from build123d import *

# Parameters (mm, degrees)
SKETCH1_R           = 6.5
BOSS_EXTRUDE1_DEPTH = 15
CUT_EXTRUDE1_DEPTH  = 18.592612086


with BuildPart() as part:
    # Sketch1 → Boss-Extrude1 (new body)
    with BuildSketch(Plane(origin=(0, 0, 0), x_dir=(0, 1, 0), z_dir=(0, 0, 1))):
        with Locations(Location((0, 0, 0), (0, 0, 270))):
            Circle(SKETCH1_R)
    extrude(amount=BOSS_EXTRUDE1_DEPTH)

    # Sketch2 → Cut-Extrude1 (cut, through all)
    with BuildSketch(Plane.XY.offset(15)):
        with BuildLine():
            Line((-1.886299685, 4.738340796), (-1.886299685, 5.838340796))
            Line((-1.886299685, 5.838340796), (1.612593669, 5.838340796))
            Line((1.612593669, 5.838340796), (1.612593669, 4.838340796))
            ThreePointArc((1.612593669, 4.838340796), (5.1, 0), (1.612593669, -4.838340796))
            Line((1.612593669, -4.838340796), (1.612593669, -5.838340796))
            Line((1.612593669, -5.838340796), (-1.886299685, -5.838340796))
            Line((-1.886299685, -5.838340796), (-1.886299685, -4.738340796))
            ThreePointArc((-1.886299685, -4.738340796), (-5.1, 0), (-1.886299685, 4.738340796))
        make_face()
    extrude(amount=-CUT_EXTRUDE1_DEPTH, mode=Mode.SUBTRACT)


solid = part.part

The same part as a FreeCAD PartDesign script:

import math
import FreeCAD as App
import Part
import Sketcher
from FreeCAD import Vector
Q = App.Units.Quantity

doc = App.newDocument("Part")
body = doc.addObject("PartDesign::Body", "Body")

sketch1 = doc.addObject("Sketcher::SketchObject", "Sketch")
body.addObject(sketch1)
sketch1.AttachmentSupport = (doc.XY_Plane, [""])
sketch1.MapMode = "FlatFace"
sketch1.addGeometry(Part.Circle(Vector(0, 0, 0), Vector(0, 0, 1), 6), False)
sketch1.addConstraint(Sketcher.Constraint("Coincident", 0, 3, -1, 1))
sketch1.addConstraint(Sketcher.Constraint("Diameter", 0, Q("13 mm")))
pad1 = doc.addObject("PartDesign::Pad", "Pad")
body.addObject(pad1)
pad1.Profile = sketch1
pad1.Length = 15

sketch2 = doc.addObject("Sketcher::SketchObject", "Sketch001")
body.addObject(sketch2)
sketch2.AttachmentSupport = (doc.XY_Plane, [""])
sketch2.MapMode = "FlatFace"
sketch2.AttachmentOffset = App.Placement(Vector(0, 0, 15), App.Rotation())
sketch2.addGeometry(Part.LineSegment(Vector(-1.9, 5.8, 0), Vector(-1.9, 4.7, 0)), False)
sketch2.addGeometry(Part.ArcOfCircle(Part.Circle(Vector(0, 0, 0), Vector(0, 0, 1), 5.1), math.radians(112), math.radians(248)), False)
sketch2.addGeometry(Part.LineSegment(Vector(-1.9, -4.7, 0), Vector(-1.9, -5.8, 0)), False)
sketch2.addGeometry(Part.LineSegment(Vector(-1.9, -5.8, 0), Vector(1.6, -5.8, 0)), False)
sketch2.addGeometry(Part.LineSegment(Vector(1.6, -5.8, 0), Vector(1.6, -4.8, 0)), False)
sketch2.addGeometry(Part.ArcOfCircle(Part.Circle(Vector(0, 0, 0), Vector(0, 0, 1), 5.1), math.radians(-72), math.radians(72)), False)
sketch2.addGeometry(Part.LineSegment(Vector(1.6, 4.8, 0), Vector(1.6, 5.8, 0)), False)
sketch2.addGeometry(Part.LineSegment(Vector(1.6, 5.8, 0), Vector(-1.9, 5.8, 0)), False)
sketch2.addConstraint(Sketcher.Constraint("Coincident", 0, 2, 1, 1))
sketch2.addConstraint(Sketcher.Constraint("Coincident", 1, 2, 2, 1))
sketch2.addConstraint(Sketcher.Constraint("Coincident", 2, 2, 3, 1))
sketch2.addConstraint(Sketcher.Constraint("Coincident", 3, 2, 4, 1))
sketch2.addConstraint(Sketcher.Constraint("Coincident", 4, 2, 5, 1))
sketch2.addConstraint(Sketcher.Constraint("Coincident", 5, 2, 6, 1))
sketch2.addConstraint(Sketcher.Constraint("Coincident", 6, 2, 7, 1))
sketch2.addConstraint(Sketcher.Constraint("Coincident", 7, 2, 0, 1))
sketch2.addConstraint(Sketcher.Constraint("Vertical", 0))
sketch2.addConstraint(Sketcher.Constraint("Vertical", 2))
sketch2.addConstraint(Sketcher.Constraint("Horizontal", 3))
sketch2.addConstraint(Sketcher.Constraint("Vertical", 4))
sketch2.addConstraint(Sketcher.Constraint("Vertical", 6))
sketch2.addConstraint(Sketcher.Constraint("Horizontal", 7))
sketch2.addConstraint(Sketcher.Constraint("Coincident", 1, 3, -1, 1))
sketch2.addConstraint(Sketcher.Constraint("Coincident", 5, 3, -1, 1))
sketch2.addConstraint(Sketcher.Constraint("Equal", 1, 5))
sketch2.addConstraint(Sketcher.Constraint("Symmetric", 3, 2, 6, 2, -1))
sketch2.addConstraint(Sketcher.Constraint("Vertical", 0, 2, 1, 2))
sketch2.addConstraint(Sketcher.Constraint("Radius", 1, Q("5.1 mm")))
sketch2.addConstraint(Sketcher.Constraint("DistanceY", 4, 1, 4, 2, Q("1 mm")))
sketch2.addConstraint(Sketcher.Constraint("DistanceY", 0, 2, 0, 1, Q("1.1 mm")))
sketch2.addConstraint(Sketcher.Constraint("DistanceX", 0, 2, -1, 1, Q("1.8863 mm")))
pocket1 = doc.addObject("PartDesign::Pocket", "Pocket")
body.addObject(pocket1)
pocket1.Profile = sketch2
pocket1.Type = "ThroughAll"

doc.recompute()
